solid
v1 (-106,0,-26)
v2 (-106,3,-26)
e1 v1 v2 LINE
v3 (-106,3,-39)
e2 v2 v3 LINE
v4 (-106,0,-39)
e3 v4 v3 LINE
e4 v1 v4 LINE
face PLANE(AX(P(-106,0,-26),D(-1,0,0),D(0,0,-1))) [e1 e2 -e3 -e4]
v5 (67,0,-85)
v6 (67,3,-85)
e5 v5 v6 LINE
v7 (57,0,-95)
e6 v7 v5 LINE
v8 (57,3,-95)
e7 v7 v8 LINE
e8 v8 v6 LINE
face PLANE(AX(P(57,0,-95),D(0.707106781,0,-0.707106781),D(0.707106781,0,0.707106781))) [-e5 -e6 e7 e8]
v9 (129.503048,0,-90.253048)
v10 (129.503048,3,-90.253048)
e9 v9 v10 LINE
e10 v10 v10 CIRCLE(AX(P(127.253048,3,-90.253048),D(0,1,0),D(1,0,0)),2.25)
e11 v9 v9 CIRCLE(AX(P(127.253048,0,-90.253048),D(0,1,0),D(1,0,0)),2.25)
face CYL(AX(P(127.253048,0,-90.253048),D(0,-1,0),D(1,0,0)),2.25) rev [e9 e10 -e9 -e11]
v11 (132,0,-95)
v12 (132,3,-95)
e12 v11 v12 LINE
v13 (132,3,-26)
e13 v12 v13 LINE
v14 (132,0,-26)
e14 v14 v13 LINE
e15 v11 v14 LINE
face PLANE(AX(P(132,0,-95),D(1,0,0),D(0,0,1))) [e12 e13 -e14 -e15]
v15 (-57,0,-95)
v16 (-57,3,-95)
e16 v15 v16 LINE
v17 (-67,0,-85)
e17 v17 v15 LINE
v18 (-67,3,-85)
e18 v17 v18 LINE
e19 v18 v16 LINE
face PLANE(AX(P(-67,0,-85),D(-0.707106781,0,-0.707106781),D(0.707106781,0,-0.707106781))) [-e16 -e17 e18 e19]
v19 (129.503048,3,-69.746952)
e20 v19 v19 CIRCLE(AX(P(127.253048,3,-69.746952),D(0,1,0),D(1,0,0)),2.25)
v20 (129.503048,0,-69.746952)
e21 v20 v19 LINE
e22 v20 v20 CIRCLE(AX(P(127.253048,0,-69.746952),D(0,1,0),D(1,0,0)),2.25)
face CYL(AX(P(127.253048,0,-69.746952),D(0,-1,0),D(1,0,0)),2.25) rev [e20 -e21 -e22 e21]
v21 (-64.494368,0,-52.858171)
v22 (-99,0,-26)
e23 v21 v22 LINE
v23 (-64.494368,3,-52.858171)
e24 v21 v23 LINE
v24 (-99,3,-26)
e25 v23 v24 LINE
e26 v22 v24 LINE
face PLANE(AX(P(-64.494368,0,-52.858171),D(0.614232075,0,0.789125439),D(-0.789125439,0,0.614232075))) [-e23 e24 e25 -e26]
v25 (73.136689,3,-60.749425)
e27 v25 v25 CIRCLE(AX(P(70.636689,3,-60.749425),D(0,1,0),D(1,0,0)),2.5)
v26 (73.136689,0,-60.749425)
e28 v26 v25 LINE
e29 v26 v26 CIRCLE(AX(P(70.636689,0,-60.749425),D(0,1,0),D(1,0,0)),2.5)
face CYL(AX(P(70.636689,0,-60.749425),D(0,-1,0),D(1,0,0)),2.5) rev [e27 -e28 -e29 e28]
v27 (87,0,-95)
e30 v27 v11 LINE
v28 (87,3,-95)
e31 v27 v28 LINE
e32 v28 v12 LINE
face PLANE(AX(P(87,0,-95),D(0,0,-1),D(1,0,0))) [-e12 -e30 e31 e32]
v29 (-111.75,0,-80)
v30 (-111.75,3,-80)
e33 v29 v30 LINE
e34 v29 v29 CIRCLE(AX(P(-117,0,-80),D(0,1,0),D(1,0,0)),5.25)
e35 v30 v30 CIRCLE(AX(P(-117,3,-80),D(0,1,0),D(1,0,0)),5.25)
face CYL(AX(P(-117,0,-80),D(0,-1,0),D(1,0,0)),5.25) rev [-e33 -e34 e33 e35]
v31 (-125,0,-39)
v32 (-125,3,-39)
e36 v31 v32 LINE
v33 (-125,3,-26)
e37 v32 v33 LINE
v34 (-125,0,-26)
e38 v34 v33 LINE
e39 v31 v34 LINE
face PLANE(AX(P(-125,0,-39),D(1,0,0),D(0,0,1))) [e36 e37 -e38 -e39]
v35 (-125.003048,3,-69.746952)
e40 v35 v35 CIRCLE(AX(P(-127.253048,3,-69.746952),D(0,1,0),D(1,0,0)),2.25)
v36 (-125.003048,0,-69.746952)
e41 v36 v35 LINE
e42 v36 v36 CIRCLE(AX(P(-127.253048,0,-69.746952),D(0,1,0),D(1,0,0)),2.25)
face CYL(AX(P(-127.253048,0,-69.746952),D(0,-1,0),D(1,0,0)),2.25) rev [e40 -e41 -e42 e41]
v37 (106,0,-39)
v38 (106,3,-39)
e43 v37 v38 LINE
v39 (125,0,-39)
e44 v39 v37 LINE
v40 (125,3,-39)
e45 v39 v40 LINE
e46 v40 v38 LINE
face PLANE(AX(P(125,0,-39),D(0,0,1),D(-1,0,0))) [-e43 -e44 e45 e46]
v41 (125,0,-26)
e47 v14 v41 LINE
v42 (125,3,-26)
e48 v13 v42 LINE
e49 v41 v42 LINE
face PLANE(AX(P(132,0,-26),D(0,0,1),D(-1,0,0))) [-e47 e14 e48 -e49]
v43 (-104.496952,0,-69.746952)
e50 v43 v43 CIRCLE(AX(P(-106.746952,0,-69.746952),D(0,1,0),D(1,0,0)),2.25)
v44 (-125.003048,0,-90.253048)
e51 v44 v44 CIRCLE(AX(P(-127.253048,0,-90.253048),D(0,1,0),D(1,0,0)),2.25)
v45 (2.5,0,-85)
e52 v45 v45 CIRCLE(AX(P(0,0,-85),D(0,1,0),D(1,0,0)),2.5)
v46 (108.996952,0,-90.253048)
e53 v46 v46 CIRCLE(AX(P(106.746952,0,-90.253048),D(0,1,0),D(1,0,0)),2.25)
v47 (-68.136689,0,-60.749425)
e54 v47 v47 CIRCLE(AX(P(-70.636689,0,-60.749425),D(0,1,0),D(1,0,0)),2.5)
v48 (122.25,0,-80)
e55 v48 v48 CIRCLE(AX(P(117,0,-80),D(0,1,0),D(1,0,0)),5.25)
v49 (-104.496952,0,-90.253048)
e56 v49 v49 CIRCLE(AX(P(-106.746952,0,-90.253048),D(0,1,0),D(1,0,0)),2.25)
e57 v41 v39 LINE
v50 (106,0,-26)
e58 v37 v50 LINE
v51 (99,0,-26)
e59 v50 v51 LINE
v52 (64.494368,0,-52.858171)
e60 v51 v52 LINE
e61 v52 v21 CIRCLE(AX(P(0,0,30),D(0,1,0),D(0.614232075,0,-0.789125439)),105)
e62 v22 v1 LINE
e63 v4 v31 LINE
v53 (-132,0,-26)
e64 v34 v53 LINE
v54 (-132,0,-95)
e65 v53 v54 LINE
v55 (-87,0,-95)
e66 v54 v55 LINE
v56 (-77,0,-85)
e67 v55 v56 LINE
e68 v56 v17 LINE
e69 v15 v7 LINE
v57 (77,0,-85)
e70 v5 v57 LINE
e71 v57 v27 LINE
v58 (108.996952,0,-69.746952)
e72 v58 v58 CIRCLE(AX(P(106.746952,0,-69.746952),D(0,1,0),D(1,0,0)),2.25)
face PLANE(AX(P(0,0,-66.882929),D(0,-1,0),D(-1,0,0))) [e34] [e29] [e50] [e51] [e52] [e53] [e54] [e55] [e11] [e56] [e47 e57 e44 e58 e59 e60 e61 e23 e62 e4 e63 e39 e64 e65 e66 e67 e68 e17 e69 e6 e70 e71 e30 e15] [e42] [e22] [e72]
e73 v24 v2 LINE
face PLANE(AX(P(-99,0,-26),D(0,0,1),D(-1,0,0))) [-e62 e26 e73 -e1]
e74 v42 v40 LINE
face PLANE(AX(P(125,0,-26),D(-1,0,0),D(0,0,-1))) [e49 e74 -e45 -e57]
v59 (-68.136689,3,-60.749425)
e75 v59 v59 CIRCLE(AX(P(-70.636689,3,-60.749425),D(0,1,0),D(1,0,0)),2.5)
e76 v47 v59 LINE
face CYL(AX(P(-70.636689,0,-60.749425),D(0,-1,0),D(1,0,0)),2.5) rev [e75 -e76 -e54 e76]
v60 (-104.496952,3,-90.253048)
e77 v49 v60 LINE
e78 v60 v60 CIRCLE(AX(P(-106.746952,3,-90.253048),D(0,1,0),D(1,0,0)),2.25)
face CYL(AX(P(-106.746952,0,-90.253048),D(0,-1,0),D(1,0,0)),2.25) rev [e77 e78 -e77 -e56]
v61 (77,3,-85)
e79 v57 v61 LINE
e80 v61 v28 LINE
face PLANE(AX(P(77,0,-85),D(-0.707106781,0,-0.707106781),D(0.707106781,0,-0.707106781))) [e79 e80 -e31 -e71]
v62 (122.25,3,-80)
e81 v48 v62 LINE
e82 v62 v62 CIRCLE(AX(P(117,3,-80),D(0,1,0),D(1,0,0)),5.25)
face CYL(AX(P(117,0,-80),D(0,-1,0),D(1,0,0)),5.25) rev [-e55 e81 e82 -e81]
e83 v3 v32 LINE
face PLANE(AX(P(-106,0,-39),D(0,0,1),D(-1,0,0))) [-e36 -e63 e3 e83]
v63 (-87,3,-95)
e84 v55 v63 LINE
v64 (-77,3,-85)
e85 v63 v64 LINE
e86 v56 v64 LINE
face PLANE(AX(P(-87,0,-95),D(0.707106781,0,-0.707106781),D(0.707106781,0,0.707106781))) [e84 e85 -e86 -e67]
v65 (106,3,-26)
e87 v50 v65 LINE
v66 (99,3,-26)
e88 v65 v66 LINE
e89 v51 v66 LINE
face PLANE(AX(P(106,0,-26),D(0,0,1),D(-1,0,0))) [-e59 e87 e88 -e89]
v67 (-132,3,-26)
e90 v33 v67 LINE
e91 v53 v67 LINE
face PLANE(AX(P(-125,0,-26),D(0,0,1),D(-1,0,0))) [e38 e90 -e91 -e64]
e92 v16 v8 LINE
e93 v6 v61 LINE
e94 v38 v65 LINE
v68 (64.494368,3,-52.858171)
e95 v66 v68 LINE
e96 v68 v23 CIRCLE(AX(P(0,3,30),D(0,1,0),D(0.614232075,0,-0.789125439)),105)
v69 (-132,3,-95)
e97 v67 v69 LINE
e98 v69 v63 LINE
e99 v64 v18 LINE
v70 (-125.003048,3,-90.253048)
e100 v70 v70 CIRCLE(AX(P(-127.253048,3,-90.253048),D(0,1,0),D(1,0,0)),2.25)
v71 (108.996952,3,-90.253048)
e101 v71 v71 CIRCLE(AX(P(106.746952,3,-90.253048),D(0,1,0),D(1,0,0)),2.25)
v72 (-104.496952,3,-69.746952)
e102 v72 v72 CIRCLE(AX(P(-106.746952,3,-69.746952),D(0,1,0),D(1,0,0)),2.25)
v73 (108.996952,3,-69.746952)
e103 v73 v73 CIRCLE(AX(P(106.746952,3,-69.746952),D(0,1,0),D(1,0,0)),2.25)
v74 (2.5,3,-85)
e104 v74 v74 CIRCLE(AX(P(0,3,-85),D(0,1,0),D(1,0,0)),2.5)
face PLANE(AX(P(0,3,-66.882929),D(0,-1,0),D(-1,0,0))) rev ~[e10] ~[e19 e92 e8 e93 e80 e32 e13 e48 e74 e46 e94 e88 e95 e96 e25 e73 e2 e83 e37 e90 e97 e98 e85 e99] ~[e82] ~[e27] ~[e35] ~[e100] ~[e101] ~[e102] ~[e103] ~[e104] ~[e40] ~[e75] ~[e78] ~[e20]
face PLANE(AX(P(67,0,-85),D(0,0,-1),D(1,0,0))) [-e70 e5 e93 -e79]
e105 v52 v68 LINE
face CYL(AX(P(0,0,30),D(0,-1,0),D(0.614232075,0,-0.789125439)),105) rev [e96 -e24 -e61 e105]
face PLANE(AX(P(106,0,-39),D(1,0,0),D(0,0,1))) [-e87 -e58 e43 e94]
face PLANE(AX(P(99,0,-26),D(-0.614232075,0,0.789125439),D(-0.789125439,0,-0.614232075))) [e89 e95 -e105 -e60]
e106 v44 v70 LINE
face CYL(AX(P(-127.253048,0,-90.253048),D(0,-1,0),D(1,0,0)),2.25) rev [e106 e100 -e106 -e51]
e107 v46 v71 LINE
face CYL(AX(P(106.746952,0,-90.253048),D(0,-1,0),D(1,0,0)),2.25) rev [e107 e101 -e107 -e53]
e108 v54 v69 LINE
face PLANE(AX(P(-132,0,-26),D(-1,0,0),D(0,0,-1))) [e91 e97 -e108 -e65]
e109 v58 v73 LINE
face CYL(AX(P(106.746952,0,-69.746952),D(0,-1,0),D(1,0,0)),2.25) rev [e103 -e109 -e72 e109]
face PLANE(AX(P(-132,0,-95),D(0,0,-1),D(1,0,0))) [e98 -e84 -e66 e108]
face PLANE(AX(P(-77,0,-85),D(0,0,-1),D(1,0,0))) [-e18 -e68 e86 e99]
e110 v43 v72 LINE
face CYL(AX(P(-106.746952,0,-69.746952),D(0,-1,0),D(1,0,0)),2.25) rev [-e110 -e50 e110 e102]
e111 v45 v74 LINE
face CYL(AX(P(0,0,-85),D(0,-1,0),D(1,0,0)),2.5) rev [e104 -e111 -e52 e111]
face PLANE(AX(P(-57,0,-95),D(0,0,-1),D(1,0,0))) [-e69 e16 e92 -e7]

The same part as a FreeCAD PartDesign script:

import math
import FreeCAD as App
import Part
import Sketcher

doc = App.newDocument("Part")
params = doc.addObject("Spreadsheet::Sheet", "Params")
for row, (alias, value) in enumerate([
    ("sketch1_diameter", "5 mm"),
    ("sketch1_radius", "105 mm"),
    ("sketch1_diameter2", "4.5 mm"),
    ("sketch1_diameter3", "10.5 mm"),
    ("sketch1_width", "7 mm"),
    ("pad1_length", "3 mm"),
], start=1):
    params.set(f"A{row}", alias)
    params.set(f"B{row}", "=" + value)
    params.setAlias(f"B{row}", alias)

body = doc.addObject("PartDesign::Body", "Body")

sketch1 = body.newObject("Sketcher::SketchObject", "Sketch")
sketch1.AttachmentSupport = (doc.getObject("XZ_Plane"), [""])
sketch1.MapMode = "FlatFace"
sketch1.addGeometry([
    Part.LineSegment(App.Vector(-99, -26, 0), App.Vector(-64.5, -52.9, 0)),
    Part.ArcOfCircle(Part.Circle(App.Vector(0, 30, 0), App.Vector(0, 0, 1), 105), math.radians(-128), math.radians(-52)),
    Part.LineSegment(App.Vector(64.5, -52.9, 0), App.Vector(99, -26, 0)),
    Part.LineSegment(App.Vector(99, -26, 0), App.Vector(106, -26, 0)),
    Part.LineSegment(App.Vector(106, -26, 0), App.Vector(106, -39, 0)),
    Part.LineSegment(App.Vector(106, -39, 0), App.Vector(125, -39, 0)),
    Part.LineSegment(App.Vector(125, -39, 0), App.Vector(125, -26, 0)),
    Part.LineSegment(App.Vector(125, -26, 0), App.Vector(132, -26, 0)),
    Part.LineSegment(App.Vector(132, -26, 0), App.Vector(132, -95, 0)),
    Part.LineSegment(App.Vector(132, -95, 0), App.Vector(87, -95, 0)),
    Part.LineSegment(App.Vector(87, -95, 0), App.Vector(77, -85, 0)),
    Part.LineSegment(App.Vector(77, -85, 0), App.Vector(67, -85, 0)),
    Part.LineSegment(App.Vector(67, -85, 0), App.Vector(57, -95, 0)),
    Part.LineSegment(App.Vector(57, -95, 0), App.Vector(-57, -95, 0)),
    Part.LineSegment(App.Vector(-57, -95, 0), App.Vector(-67, -85, 0)),
    Part.LineSegment(App.Vector(-67, -85, 0), App.Vector(-77, -85, 0)),
    Part.LineSegment(App.Vector(-77, -85, 0), App.Vector(-87, -95, 0)),
    Part.LineSegment(App.Vector(-87, -95, 0), App.Vector(-132, -95, 0)),
    Part.LineSegment(App.Vector(-132, -95, 0), App.Vector(-132, -26, 0)),
    Part.LineSegment(App.Vector(-132, -26, 0), App.Vector(-125, -26, 0)),
    Part.LineSegment(App.Vector(-125, -26, 0), App.Vector(-125, -39, 0)),
    Part.LineSegment(App.Vector(-125, -39, 0), App.Vector(-106, -39, 0)),
    Part.LineSegment(App.Vector(-106, -39, 0), App.Vector(-106, -26, 0)),
    Part.LineSegment(App.Vector(-106, -26, 0), App.Vector(-99, -26, 0)),
    Part.Circle(App.Vector(70.6, -60.7, 0), App.Vector(0, 0, 1), 2.5),
    Part.Circle(App.Vector(127.3, -69.7, 0), App.Vector(0, 0, 1), 2.2),
    Part.Circle(App.Vector(106.7, -69.7, 0), App.Vector(0, 0, 1), 2.2),
    Part.Circle(App.Vector(-70.6, -60.7, 0), App.Vector(0, 0, 1), 2.5),
    Part.Circle(App.Vector(-106.7, -69.7, 0), App.Vector(0, 0, 1), 2.2),
    Part.Circle(App.Vector(-127.3, -69.7, 0), App.Vector(0, 0, 1), 2.2),
    Part.Circle(App.Vector(117, -80, 0), App.Vector(0, 0, 1), 5.2),
    Part.Circle(App.Vector(127.3, -90.3, 0), App.Vector(0, 0, 1), 2.2),
    Part.Circle(App.Vector(106.7, -90.3, 0), App.Vector(0, 0, 1), 2.2),
    Part.Circle(App.Vector(-117, -80, 0), App.Vector(0, 0, 1), 5.2),
    Part.Circle(App.Vector(0, -85, 0), App.Vector(0, 0, 1), 2.5),
    Part.Circle(App.Vector(-106.7, -90.3, 0), App.Vector(0, 0, 1), 2.2),
    Part.Circle(App.Vector(-127.3, -90.3, 0), App.Vector(0, 0, 1), 2.2),
], False)
sketch1.addConstraint([
    Sketcher.Constraint("Tangent", 0, 2, 1, 1),
    Sketcher.Constraint("Tangent", 1, 2, 2, 1),
    Sketcher.Constraint("Coincident", 2, 2, 3, 1),
    Sketcher.Constraint("Coincident", 3, 2, 4, 1),
    Sketcher.Constraint("Coincident", 4, 2, 5, 1),
    Sketcher.Constraint("Coincident", 5, 2, 6, 1),
    Sketcher.Constraint("Coincident", 6, 2, 7, 1),
    Sketcher.Constraint("Coincident", 7, 2, 8, 1),
    Sketcher.Constraint("Coincident", 8, 2, 9, 1),
    Sketcher.Constraint("Coincident", 9, 2, 10, 1),
    Sketcher.Constraint("Coincident", 10, 2, 11, 1),
    Sketcher.Constraint("Coincident", 11, 2, 12, 1),
    Sketcher.Constraint("Coincident", 12, 2, 13, 1),
    Sketcher.Constraint("Coincident", 13, 2, 14, 1),
    Sketcher.Constraint("Coincident", 14, 2, 15, 1),
    Sketcher.Constraint("Coincident", 15, 2, 16, 1),
    Sketcher.Constraint("Coincident", 16, 2, 17, 1),
    Sketcher.Constraint("Coincident", 17, 2, 18, 1),
    Sketcher.Constraint("Coincident", 18, 2, 19, 1),
    Sketcher.Constraint("Coincident", 19, 2, 20, 1),
    Sketcher.Constraint("Coincident", 20, 2, 21, 1),
    Sketcher.Constraint("Coincident", 21, 2, 22, 1),
    Sketcher.Constraint("Coincident", 22, 2, 23, 1),
    Sketcher.Constraint("Coincident", 23, 2, 0, 1),
    Sketcher.Constraint("Horizontal", 3),
    Sketcher.Constraint("Vertical", 4),
    Sketcher.Constraint("Horizontal", 5),
    Sketcher.Constraint("Vertical", 6),
    Sketcher.Constraint("Horizontal", 7),
    Sketcher.Constraint("Vertical", 8),
    Sketcher.Constraint("Horizontal", 9),
    Sketcher.Constraint("Horizontal", 11),
    Sketcher.Constraint("Horizontal", 13),
    Sketcher.Constraint("Horizontal", 15),
    Sketcher.Constraint("Horizontal", 17),
    Sketcher.Constraint("Vertical", 18),
    Sketcher.Constraint("Horizontal", 19),
    Sketcher.Constraint("Vertical", 20),
    Sketcher.Constraint("Horizontal", 21),
    Sketcher.Constraint("Vertical", 22),
    Sketcher.Constraint("Horizontal", 23),
    Sketcher.Constraint("Equal", 25, 26),
    Sketcher.Constraint("Equal", 24, 27),
    Sketcher.Constraint("Equal", 26, 28),
    Sketcher.Constraint("Equal", 28, 29),
    Sketcher.Constraint("Equal", 29, 31),
    Sketcher.Constraint("Equal", 31, 32),
    Sketcher.Constraint("Equal", 30, 33),
    Sketcher.Constraint("Equal", 27, 34),
    Sketcher.Constraint("Equal", 32, 35),
    Sketcher.Constraint("Equal", 35, 36),
    Sketcher.Constraint("Symmetric", 24, 3, 27, 3, -2),
    Sketcher.Constraint("Symmetric", 26, 3, 28, 3, -2),
    Sketcher.Constraint("Symmetric", 25, 3, 29, 3, -2),
    Sketcher.Constraint("Symmetric", 30, 3, 33, 3, -2),
    Sketcher.Constraint("Symmetric", 32, 3, 35, 3, -2),
    Sketcher.Constraint("Symmetric", 31, 3, 36, 3, -2),
    Sketcher.Constraint("Symmetric", 0, 2, 1, 2, -2),
    Sketcher.Constraint("Symmetric", 11, 2, 14, 2, -2),
    Sketcher.Constraint("Symmetric", 9, 2, 16, 2, -2),
    Sketcher.Constraint("Symmetric", 7, 2, 18, 2, -2),
    Sketcher.Constraint("Symmetric", 5, 2, 20, 2, -2),
    Sketcher.Constraint("Symmetric", 3, 2, 22, 2, -2),
    Sketcher.Constraint("PointOnObject", 34, 3, -2),
    Sketcher.Constraint("Perpendicular", 10, 12),
    Sketcher.Constraint("Perpendicular", 12, 14),
    Sketcher.Constraint("Perpendicular", 14, 16),
    Sketcher.Constraint("Horizontal", 25, 3, 26, 3),
    Sketcher.Constraint("Horizontal", 31, 3, 32, 3),
    Sketcher.Constraint("Horizontal", 3, 2, 6, 2),
    Sketcher.Constraint("Horizontal", 34, 3, 10, 2),
    Sketcher.Constraint("Horizontal", 9, 2, 12, 2),
    Sketcher.Constraint("Vertical", 25, 3, 31, 3),
    Sketcher.Constraint("Vertical", 26, 3, 32, 3),
    Sketcher.Constraint("Equal", 3, 7),
    Sketcher.Constraint("Equal", 11, 15),
    Sketcher.Constraint("Diameter", 24, 5.0),
    Sketcher.Constraint("Radius", 1, 105.0),
    Sketcher.Constraint("Diameter", 25, 4.5),
    Sketcher.Constraint("Diameter", 30, 10.5),
    Sketcher.Constraint("DistanceX", 3, 1, 3, 2, 7.0),
    Sketcher.Constraint("DistanceX", 5, 1, 5, 2, 19.0),
    Sketcher.Constraint("DistanceX", 9, 2, 9, 1, 45.0),
    Sketcher.Constraint("DistanceX", 11, 2, 11, 1, 10.0),
    Sketcher.Constraint("DistanceX", 13, 2, 13, 1, 114.0),
    Sketcher.Constraint("DistanceY", 4, 2, 4, 1, 13.0),
    Sketcher.Constraint("DistanceY", 8, 2, 8, 1, 69.0),
    Sketcher.Constraint("DistanceY", -1, 1, 1, 3, 30.0),
    Sketcher.Constraint("DistanceX", -1, 1, 30, 3, 117.0),
    Sketcher.Constraint("DistanceY", 30, 3, -1, 1, 80.0),
    Sketcher.Constraint("DistanceY", 34, 3, -1, 1, 85.0),
    Sketcher.Constraint("DistanceX", -1, 1, 2, 2, 99.0),
    Sketcher.Constraint("DistanceX", 28, 3, 25, 3, 234.0),
    Sketcher.Constraint("DistanceX", -1, 1, 24, 3, 70.636689),
    Sketcher.Constraint("DistanceX", -1, 1, 25, 3, 127.253048),
    Sketcher.Constraint("DistanceY", 25, 3, -1, 1, 69.746952),
    Sketcher.Constraint("DistanceY", 31, 3, -1, 1, 90.253048),
    Sketcher.Constraint("DistanceY", 24, 3, -1, 1, 60.749425),
])
sketch1.setExpression("Constraints[76]", "Params.sketch1_diameter")
sketch1.setExpression("Constraints[77]", "Params.sketch1_radius")
sketch1.setExpression("Constraints[78]", "Params.sketch1_diameter2")
sketch1.setExpression("Constraints[79]", "Params.sketch1_diameter3")
sketch1.setExpression("Constraints[80]", "Params.sketch1_width")
pad1 = body.newObject("PartDesign::Pad", "Pad")
pad1.Profile = sketch1
pad1.setExpression("Length", "Params.pad1_length")
pad1.Reversed = True

doc.recompute()
